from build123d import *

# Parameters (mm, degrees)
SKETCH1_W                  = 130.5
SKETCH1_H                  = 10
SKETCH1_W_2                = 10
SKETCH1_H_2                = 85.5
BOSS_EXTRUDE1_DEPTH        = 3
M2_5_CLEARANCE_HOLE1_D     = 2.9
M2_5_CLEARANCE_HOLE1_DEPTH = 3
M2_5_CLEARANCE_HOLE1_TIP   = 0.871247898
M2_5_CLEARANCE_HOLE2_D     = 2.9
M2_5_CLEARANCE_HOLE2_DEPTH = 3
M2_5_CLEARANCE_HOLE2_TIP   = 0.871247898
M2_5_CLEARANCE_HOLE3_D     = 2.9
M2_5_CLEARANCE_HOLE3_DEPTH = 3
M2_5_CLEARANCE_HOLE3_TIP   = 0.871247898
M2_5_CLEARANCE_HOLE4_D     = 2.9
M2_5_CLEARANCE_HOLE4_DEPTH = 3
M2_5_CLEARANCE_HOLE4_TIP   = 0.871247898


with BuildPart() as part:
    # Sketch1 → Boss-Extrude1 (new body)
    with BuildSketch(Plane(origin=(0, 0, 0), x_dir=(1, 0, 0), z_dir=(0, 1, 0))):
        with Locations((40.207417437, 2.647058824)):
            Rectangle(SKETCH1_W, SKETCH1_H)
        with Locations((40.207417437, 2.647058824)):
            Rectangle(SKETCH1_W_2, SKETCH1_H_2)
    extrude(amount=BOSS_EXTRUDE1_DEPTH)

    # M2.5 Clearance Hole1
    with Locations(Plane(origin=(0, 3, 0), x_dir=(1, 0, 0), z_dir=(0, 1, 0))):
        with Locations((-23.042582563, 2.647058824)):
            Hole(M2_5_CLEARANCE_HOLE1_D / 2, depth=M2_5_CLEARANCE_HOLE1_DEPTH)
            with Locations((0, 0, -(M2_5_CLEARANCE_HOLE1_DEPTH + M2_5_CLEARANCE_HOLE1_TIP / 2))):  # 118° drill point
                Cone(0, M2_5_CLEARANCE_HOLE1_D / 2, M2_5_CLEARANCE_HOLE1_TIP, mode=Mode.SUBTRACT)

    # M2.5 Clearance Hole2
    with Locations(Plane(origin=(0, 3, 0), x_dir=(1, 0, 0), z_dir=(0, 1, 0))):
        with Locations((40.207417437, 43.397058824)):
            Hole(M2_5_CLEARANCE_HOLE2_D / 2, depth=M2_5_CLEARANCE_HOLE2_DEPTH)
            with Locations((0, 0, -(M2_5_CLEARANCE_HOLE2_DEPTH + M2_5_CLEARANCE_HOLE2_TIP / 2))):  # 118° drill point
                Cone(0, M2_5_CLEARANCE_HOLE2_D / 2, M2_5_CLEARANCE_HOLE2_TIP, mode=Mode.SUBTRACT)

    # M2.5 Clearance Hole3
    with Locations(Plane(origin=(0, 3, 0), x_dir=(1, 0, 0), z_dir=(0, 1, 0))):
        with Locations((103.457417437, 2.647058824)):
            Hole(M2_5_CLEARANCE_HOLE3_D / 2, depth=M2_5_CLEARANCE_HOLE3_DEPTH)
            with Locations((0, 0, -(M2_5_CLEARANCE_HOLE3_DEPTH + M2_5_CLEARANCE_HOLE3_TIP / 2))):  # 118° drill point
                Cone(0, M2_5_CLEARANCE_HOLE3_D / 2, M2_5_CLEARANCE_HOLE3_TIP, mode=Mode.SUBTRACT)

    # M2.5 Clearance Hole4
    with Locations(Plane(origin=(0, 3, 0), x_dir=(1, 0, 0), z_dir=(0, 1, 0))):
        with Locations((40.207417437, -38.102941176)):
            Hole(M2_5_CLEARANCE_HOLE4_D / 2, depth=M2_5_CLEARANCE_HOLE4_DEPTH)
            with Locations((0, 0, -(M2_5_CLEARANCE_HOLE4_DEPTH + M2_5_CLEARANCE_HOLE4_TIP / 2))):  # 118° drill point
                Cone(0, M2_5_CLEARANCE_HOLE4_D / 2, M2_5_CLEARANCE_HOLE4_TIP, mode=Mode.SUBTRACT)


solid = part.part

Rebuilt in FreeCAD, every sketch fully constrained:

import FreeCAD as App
import Part
import Sketcher
from FreeCAD import Vector

doc = App.newDocument("Part")
body = doc.addObject("PartDesign::Body", "Body")

# Sketch on XZ plane
sketch1 = body.newObject("Sketcher::SketchObject", "Sketch")
sketch1.AttachmentSupport = (doc.getObject("XZ_Plane"), [""])
sketch1.MapMode = "FlatFace"
sketch1.addGeometry([
    Part.LineSegment(Vector(-25, -8, 0), Vector(-25, 2, 0)),  # 0
    Part.LineSegment(Vector(-25, 2, 0), Vector(35, 2, 0)),  # 1
    Part.LineSegment(Vector(35, 2, 0), Vector(35, 40, 0)),  # 2
    Part.LineSegment(Vector(35, 40, 0), Vector(45, 40, 0)),  # 3
    Part.LineSegment(Vector(45, 40, 0), Vector(45, 2, 0)),  # 4
    Part.LineSegment(Vector(45, 2, 0), Vector(105, 2, 0)),  # 5
    Part.LineSegment(Vector(105, 2, 0), Vector(105, -8, 0)),  # 6
    Part.LineSegment(Vector(105, -8, 0), Vector(45, -8, 0)),  # 7
    Part.LineSegment(Vector(45, -8, 0), Vector(45, -45, 0)),  # 8
    Part.LineSegment(Vector(45, -45, 0), Vector(35, -45, 0)),  # 9
    Part.LineSegment(Vector(35, -45, 0), Vector(35, -8, 0)),  # 10
    Part.LineSegment(Vector(35, -8, 0), Vector(-25, -8, 0)),  # 11
], False)
sketch1.addConstraint([
    Sketcher.Constraint("Coincident", 0, 2, 1, 1),
    Sketcher.Constraint("Coincident", 1, 2, 2, 1),
    Sketcher.Constraint("Coincident", 2, 2, 3, 1),
    Sketcher.Constraint("Coincident", 3, 2, 4, 1),
    Sketcher.Constraint("Coincident", 4, 2, 5, 1),
    Sketcher.Constraint("Coincident", 5, 2, 6, 1),
    Sketcher.Constraint("Coincident", 6, 2, 7, 1),
    Sketcher.Constraint("Coincident", 7, 2, 8, 1),
    Sketcher.Constraint("Coincident", 8, 2, 9, 1),
    Sketcher.Constraint("Coincident", 9, 2, 10, 1),
    Sketcher.Constraint("Coincident", 10, 2, 11, 1),
    Sketcher.Constraint("Coincident", 11, 2, 0, 1),
    Sketcher.Constraint("Vertical", 0),
    Sketcher.Constraint("Horizontal", 1),
    Sketcher.Constraint("Vertical", 2),
    Sketcher.Constraint("Horizontal", 3),
    Sketcher.Constraint("Vertical", 4),
    Sketcher.Constraint("Horizontal", 5),
    Sketcher.Constraint("Vertical", 6),
    Sketcher.Constraint("Horizontal", 7),
    Sketcher.Constraint("Vertical", 8),
    Sketcher.Constraint("Horizontal", 9),
    Sketcher.Constraint("Vertical", 10),
    Sketcher.Constraint("Horizontal", 11),
    Sketcher.Constraint("Horizontal", 1, 2, 4, 2),
    Sketcher.Constraint("Horizontal", 7, 2, 10, 2),
    Sketcher.Constraint("Vertical", 4, 2, 7, 2),
    Sketcher.Constraint("Vertical", 2, 2, 9, 2),
    Sketcher.Constraint("Equal", 1, 5),
    Sketcher.Constraint("Equal", 9, 0),
    Sketcher.Constraint("Equal", 4, 8),
    Sketcher.Constraint("DistanceX", 3, 1, 3, 2, 10.0),
    Sketcher.Constraint("DistanceX", 1, 1, 1, 2, 60.25),
    Sketcher.Constraint("DistanceY", 2, 1, 2, 2, 37.75),
    Sketcher.Constraint("DistanceY", -1, 1, 0, 2, 2.352941),
    Sketcher.Constraint("DistanceX", 0, 2, -1, 1, 25.042583),
])
pad1 = body.newObject("PartDesign::Pad", "Pad")
pad1.Profile = sketch1
pad1.Length = 3
pad1.Reversed = True

# Sketch on XZ plane
sketch2 = body.newObject("Sketcher::SketchObject", "Sketch001")
sketch2.AttachmentSupport = (doc.getObject("XZ_Plane"), [""])
sketch2.MapMode = "FlatFace"
sketch2.AttachmentOffset = App.Placement(Vector(0, 0, -3), App.Rotation())
sketch2.addGeometry(Part.Circle(Vector(-23, -2.6, 0), Vector(0, 0, 1), 1.4), False)
sketch2.addConstraint([
    Sketcher.Constraint("Diameter", 0, 2.9),
    Sketcher.Constraint("DistanceY", 0, 3, -1, 1, 2.647059),
    Sketcher.Constraint("DistanceX", 0, 3, -1, 1, 23.042583),
])
doc.recompute()
hole = body.newObject("PartDesign::Hole", "Hole")
hole.Profile = sketch2
hole.ThreadType = "None"
hole.Diameter = 2.9
hole.DepthType = "Dimension"
hole.Depth = 3
hole.DrillPoint = "Angled"
hole.DrillPointAngle = 118
hole.Reversed = True

# Sketch on XZ plane
sketch3 = body.newObject("Sketcher::SketchObject", "Sketch002")
sketch3.AttachmentSupport = (doc.getObject("XZ_Plane"), [""])
sketch3.MapMode = "FlatFace"
sketch3.AttachmentOffset = App.Placement(Vector(0, 0, -3), App.Rotation())
sketch3.addGeometry(Part.Circle(Vector(40.2, -43.4, 0), Vector(0, 0, 1), 1.4), False)
sketch3.addConstraint([
    Sketcher.Constraint("Diameter", 0, 2.9),
    Sketcher.Constraint("DistanceY", 0, 3, -1, 1, 43.397059),
    Sketcher.Constraint("DistanceX", -1, 1, 0, 3, 40.207417),
])
doc.recompute()
hole2 = body.newObject("PartDesign::Hole", "Hole001")
hole2.Profile = sketch3
hole2.ThreadType = "None"
hole2.Diameter = 2.9
hole2.DepthType = "Dimension"
hole2.Depth = 3
hole2.DrillPoint = "Angled"
hole2.DrillPointAngle = 118
hole2.Reversed = True

# Sketch on XZ plane
sketch4 = body.newObject("Sketcher::SketchObject", "Sketch003")
sketch4.AttachmentSupport = (doc.getObject("XZ_Plane"), [""])
sketch4.MapMode = "FlatFace"
sketch4.AttachmentOffset = App.Placement(Vector(0, 0, -3), App.Rotation())
sketch4.addGeometry(Part.Circle(Vector(103.5, -2.6, 0), Vector(0, 0, 1), 1.4), False)
sketch4.addConstraint([
    Sketcher.Constraint("Diameter", 0, 2.9),
    Sketcher.Constraint("DistanceY", 0, 3, -1, 1, 2.647059),
    Sketcher.Constraint("DistanceX", -1, 1, 0, 3, 103.457417),
])
doc.recompute()
hole3 = body.newObject("PartDesign::Hole", "Hole002")
hole3.Profile = sketch4
hole3.ThreadType = "None"
hole3.Diameter = 2.9
hole3.DepthType = "Dimension"
hole3.Depth = 3
hole3.DrillPoint = "Angled"
hole3.DrillPointAngle = 118
hole3.Reversed = True

# Sketch on XZ plane
sketch5 = body.newObject("Sketcher::SketchObject", "Sketch004")
sketch5.AttachmentSupport = (doc.getObject("XZ_Plane"), [""])
sketch5.MapMode = "FlatFace"
sketch5.AttachmentOffset = App.Placement(Vector(0, 0, -3), App.Rotation())
sketch5.addGeometry(Part.Circle(Vector(40.2, 38.1, 0), Vector(0, 0, 1), 1.4), False)
sketch5.addConstraint([
    Sketcher.Constraint("Diameter", 0, 2.9),
    Sketcher.Constraint("DistanceY", -1, 1, 0, 3, 38.102941),
    Sketcher.Constraint("DistanceX", -1, 1, 0, 3, 40.207417),
])
doc.recompute()
hole4 = body.newObject("PartDesign::Hole", "Hole003")
hole4.Profile = sketch5
hole4.ThreadType = "None"
hole4.Diameter = 2.9
hole4.DepthType = "Dimension"
hole4.Depth = 3
hole4.DrillPoint = "Angled"
hole4.DrillPointAngle = 118
hole4.Reversed = True

doc.recompute()
